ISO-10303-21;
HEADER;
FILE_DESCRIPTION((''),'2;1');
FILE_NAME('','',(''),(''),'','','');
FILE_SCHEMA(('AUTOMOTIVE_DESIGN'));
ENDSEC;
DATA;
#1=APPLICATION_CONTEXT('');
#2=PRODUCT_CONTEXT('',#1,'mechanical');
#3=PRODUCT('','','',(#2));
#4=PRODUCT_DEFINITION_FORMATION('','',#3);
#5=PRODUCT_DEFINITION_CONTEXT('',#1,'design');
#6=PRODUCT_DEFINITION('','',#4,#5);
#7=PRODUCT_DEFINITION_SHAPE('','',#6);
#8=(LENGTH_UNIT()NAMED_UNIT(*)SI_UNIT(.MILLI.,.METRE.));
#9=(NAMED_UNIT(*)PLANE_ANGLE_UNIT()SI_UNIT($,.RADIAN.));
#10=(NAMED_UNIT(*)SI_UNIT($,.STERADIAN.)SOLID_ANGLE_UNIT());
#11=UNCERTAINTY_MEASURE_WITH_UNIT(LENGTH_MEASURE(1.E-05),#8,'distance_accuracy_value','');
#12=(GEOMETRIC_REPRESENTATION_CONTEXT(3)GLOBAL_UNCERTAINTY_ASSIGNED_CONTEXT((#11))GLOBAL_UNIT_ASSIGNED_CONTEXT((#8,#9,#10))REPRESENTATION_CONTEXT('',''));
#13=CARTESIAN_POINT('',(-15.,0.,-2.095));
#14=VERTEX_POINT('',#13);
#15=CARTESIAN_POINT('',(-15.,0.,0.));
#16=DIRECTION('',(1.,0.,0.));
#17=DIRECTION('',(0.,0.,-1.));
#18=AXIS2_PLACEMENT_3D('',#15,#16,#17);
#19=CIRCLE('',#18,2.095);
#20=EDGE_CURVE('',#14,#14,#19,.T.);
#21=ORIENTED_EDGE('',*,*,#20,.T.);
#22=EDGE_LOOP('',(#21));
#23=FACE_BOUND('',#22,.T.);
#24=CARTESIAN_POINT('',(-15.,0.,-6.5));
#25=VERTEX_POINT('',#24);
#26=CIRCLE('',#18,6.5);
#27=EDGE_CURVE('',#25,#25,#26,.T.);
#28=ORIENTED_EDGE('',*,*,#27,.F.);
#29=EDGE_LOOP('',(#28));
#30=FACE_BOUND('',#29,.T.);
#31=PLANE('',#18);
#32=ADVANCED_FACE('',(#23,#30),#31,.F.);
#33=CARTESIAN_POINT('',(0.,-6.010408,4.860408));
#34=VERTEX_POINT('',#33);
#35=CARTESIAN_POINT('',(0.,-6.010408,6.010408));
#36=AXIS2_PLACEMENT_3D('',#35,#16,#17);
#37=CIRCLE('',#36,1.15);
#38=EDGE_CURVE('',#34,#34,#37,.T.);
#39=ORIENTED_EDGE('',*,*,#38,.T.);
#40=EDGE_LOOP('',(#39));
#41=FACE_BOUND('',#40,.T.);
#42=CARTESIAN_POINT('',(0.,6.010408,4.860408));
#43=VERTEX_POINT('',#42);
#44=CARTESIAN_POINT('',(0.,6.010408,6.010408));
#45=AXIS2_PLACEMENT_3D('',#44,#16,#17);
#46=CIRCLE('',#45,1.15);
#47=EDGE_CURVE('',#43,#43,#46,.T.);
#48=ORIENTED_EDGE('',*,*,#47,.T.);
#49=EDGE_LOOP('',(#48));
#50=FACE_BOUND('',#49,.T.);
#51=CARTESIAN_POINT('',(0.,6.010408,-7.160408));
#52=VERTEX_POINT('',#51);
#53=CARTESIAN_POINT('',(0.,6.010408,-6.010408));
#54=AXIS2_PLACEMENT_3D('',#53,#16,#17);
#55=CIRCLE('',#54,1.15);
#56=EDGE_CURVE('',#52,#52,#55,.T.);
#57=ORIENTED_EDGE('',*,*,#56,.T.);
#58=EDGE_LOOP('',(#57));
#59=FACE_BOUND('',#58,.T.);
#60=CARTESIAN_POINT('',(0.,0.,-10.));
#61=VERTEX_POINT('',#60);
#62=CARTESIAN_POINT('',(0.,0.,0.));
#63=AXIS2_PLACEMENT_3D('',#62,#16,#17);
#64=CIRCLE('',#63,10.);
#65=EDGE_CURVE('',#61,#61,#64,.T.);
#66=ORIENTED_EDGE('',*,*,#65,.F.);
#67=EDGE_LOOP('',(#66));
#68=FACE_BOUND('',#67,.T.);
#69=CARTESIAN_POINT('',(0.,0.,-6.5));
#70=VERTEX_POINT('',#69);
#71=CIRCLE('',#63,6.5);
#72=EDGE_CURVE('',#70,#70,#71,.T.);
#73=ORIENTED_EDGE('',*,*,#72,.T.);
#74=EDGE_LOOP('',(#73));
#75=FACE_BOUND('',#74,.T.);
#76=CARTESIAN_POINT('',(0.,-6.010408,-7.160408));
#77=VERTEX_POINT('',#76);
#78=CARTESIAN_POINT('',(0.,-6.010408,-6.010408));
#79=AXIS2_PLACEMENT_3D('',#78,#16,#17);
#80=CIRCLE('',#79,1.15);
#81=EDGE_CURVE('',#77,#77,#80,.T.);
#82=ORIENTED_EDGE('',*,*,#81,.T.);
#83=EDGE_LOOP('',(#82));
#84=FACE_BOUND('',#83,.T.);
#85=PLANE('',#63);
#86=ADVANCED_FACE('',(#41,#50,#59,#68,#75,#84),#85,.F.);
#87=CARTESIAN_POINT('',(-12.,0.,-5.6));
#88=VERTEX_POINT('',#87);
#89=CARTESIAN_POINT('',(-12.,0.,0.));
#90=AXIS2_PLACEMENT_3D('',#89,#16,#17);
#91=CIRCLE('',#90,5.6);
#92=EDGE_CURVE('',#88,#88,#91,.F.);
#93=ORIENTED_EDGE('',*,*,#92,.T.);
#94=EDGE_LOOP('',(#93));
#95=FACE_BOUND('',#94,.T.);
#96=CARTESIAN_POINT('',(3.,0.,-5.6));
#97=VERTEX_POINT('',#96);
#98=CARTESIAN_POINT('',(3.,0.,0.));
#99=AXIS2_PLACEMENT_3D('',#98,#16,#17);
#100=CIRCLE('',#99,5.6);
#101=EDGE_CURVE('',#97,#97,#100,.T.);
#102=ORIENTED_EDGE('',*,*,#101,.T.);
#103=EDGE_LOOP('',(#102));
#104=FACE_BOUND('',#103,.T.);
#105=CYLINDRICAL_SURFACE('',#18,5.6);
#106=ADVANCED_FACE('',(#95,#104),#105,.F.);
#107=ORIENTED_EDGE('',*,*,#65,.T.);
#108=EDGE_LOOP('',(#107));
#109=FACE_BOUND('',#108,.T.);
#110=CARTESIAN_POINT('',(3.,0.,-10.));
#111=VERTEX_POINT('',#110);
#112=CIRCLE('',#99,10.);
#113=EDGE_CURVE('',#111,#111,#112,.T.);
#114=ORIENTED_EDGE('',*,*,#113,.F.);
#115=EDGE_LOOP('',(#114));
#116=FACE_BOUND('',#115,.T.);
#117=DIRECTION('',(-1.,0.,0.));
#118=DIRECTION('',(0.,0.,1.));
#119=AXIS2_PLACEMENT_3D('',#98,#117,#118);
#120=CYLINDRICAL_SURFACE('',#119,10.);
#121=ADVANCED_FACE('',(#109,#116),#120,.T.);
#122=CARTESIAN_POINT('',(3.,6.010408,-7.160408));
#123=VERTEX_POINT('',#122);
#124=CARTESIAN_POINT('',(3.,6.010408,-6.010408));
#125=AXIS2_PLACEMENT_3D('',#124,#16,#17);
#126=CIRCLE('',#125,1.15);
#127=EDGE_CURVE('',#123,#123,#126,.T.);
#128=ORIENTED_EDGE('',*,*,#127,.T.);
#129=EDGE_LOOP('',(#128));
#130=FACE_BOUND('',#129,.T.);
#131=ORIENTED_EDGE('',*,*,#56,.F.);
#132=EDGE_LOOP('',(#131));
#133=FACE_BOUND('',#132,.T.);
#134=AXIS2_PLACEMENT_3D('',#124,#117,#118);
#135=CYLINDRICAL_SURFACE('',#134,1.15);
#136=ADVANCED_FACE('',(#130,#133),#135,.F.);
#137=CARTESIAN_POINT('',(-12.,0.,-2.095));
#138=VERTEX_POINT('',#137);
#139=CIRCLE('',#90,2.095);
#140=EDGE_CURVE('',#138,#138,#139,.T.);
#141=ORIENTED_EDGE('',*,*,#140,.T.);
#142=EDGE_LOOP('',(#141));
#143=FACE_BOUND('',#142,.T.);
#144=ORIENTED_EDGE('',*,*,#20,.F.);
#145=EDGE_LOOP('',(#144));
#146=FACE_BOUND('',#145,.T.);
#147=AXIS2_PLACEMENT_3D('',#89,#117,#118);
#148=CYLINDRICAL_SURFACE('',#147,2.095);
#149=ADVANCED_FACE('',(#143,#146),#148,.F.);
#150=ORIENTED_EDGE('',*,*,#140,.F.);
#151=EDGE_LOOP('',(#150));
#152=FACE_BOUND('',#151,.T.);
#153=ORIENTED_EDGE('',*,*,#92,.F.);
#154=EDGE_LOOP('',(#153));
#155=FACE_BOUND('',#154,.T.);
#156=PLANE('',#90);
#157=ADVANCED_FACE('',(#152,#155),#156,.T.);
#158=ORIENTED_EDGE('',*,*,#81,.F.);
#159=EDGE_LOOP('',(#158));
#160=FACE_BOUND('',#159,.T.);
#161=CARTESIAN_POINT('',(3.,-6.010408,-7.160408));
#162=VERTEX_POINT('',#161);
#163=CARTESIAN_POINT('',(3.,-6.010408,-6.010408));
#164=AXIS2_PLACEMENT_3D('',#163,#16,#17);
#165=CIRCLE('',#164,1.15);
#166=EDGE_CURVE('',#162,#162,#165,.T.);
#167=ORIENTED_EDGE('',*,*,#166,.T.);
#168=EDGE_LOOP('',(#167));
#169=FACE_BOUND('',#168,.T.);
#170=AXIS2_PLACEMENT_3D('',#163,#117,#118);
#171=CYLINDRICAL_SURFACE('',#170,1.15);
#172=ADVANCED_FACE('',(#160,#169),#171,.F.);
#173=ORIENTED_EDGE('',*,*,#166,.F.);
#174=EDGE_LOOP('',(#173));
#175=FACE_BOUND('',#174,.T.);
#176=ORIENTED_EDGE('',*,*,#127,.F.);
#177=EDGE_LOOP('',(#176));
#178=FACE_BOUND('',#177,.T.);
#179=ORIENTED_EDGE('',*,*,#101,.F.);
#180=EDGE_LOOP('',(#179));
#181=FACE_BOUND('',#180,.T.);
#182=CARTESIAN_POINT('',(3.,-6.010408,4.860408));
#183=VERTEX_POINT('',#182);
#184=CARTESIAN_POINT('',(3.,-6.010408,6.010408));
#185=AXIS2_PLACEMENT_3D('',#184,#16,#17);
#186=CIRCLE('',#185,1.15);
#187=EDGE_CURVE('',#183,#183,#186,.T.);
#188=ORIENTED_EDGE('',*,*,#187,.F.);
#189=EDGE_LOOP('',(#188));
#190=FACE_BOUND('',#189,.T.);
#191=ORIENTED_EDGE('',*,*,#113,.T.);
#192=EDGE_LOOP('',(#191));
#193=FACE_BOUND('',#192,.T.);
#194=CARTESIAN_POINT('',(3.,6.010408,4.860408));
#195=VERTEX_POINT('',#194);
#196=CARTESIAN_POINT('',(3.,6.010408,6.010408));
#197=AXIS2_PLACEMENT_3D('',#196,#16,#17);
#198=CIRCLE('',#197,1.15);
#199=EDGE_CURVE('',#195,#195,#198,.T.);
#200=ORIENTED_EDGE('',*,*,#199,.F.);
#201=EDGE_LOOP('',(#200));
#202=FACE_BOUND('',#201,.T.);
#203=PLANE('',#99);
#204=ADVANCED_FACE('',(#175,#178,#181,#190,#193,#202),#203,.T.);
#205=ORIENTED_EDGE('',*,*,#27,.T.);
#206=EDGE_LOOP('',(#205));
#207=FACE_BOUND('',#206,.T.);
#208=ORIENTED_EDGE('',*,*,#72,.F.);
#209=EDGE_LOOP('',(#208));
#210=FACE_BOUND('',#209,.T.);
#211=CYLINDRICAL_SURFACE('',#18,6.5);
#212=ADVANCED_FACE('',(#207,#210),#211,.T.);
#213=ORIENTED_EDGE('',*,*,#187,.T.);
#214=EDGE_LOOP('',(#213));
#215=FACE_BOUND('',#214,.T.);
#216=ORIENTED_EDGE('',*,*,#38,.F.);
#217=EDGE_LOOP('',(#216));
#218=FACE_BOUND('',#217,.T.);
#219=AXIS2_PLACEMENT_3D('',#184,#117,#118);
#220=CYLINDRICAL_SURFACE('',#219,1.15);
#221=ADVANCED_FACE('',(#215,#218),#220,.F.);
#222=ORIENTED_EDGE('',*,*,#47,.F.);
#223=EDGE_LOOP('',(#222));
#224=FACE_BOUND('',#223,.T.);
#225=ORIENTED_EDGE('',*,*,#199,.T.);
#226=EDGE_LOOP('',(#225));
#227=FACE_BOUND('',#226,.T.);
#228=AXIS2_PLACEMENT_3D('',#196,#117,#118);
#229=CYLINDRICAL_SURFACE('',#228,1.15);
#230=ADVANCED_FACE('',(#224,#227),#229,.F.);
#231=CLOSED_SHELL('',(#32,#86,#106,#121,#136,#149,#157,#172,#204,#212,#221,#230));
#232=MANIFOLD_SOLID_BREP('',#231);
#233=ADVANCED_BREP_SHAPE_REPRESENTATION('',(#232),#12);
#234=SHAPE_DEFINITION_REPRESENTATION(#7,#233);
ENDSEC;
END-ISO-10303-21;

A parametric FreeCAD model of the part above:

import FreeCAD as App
import Part
import Sketcher
from FreeCAD import Vector

doc = App.newDocument("Part")
params = doc.addObject("Spreadsheet::Sheet", "Params")
for row, (alias, value) in enumerate([
    ("sketch1_diameter", "20 mm"),
    ("pad1_length", "3 mm"),
    ("sketch2_diameter", "13 mm"),
    ("sketch2_diameter2", "11.2 mm"),
    ("pad2_length", "15 mm"),
    ("sketch3_diameter", "13 mm"),
    ("sketch3_diameter2", "4.19 mm"),
    ("pad3_length", "3 mm"),
    ("sketch4_diameter", "11.2 mm"),
    ("pocket1_length", "3 mm"),
    ("sketch5_diameter", "2.3 mm"),
], start=1):
    params.set(f"A{row}", alias)
    params.set(f"B{row}", "=" + value)
    params.setAlias(f"B{row}", alias)

body = doc.addObject("PartDesign::Body", "Body")

# Sketch on YZ plane
sketch1 = body.newObject("Sketcher::SketchObject", "Sketch")
sketch1.AttachmentSupport = (doc.getObject("YZ_Plane"), [""])
sketch1.MapMode = "FlatFace"
sketch1.addGeometry(Part.Circle(Vector(0, 0, 0), Vector(0, 0, 1), 10), False)
sketch1.addConstraint([
    Sketcher.Constraint("Coincident", 0, 3, -1, 1),
    Sketcher.Constraint("Diameter", 0, 20.0),
])
sketch1.setExpression("Constraints[1]", "Params.sketch1_diameter")
pad1 = body.newObject("PartDesign::Pad", "Pad")
pad1.Profile = sketch1
pad1.setExpression("Length", "Params.pad1_length")

# Sketch on YZ plane
sketch2 = body.newObject("Sketcher::SketchObject", "Sketch001")
sketch2.AttachmentSupport = (doc.getObject("YZ_Plane"), [""])
sketch2.MapMode = "FlatFace"
sketch2.addGeometry([
    Part.Circle(Vector(0, 0, 0), Vector(0, 0, 1), 6),
    Part.Circle(Vector(0, 0, 0), Vector(0, 0, 1), 6),
], False)
sketch2.addConstraint([
    Sketcher.Constraint("Coincident", 0, 3, -1, 1),
    Sketcher.Constraint("Coincident", 1, 3, -1, 1),
    Sketcher.Constraint("Diameter", 0, 13.0),
    Sketcher.Constraint("Diameter", 1, 11.2),
])
sketch2.setExpression("Constraints[2]", "Params.sketch2_diameter")
sketch2.setExpression("Constraints[3]", "Params.sketch2_diameter2")
pad2 = body.newObject("PartDesign::Pad", "Pad001")
pad2.Profile = sketch2
pad2.setExpression("Length", "Params.pad2_length")
pad2.Reversed = True

# Sketch on YZ plane
sketch3 = body.newObject("Sketcher::SketchObject", "Sketch002")
sketch3.AttachmentSupport = (doc.getObject("YZ_Plane"), [""])
sketch3.MapMode = "FlatFace"
sketch3.AttachmentOffset = App.Placement(Vector(0, 0, -15), App.Rotation())
sketch3.addGeometry([
    Part.Circle(Vector(0, 0, 0), Vector(0, 0, 1), 6.5),
    Part.Circle(Vector(0, 0, 0), Vector(0, 0, 1), 2.1),
], False)
sketch3.addConstraint([
    Sketcher.Constraint("Coincident", 0, 3, -1, 1),
    Sketcher.Constraint("Coincident", 1, 3, -1, 1),
    Sketcher.Constraint("Diameter", 0, 13.0),
    Sketcher.Constraint("Diameter", 1, 4.19),
])
sketch3.setExpression("Constraints[2]", "Params.sketch3_diameter")
sketch3.setExpression("Constraints[3]", "Params.sketch3_diameter2")
pad3 = body.newObject("PartDesign::Pad", "Pad002")
pad3.Profile = sketch3
pad3.setExpression("Length", "Params.pad3_length")

# Sketch on YZ plane
sketch4 = body.newObject("Sketcher::SketchObject", "Sketch003")
sketch4.AttachmentSupport = (doc.getObject("YZ_Plane"), [""])
sketch4.MapMode = "FlatFace"
sketch4.addGeometry(Part.Circle(Vector(0, 0, 0), Vector(0, 0, 1), 6), False)
sketch4.addConstraint([
    Sketcher.Constraint("Coincident", 0, 3, -1, 1),
    Sketcher.Constraint("Diameter", 0, 11.2),
])
sketch4.setExpression("Constraints[1]", "Params.sketch4_diameter")
pocket1 = body.newObject("PartDesign::Pocket", "Pocket")
pocket1.Profile = sketch4
pocket1.setExpression("Length", "Params.pocket1_length")
pocket1.Reversed = True

# Sketch on YZ plane
sketch5 = body.newObject("Sketcher::SketchObject", "Sketch004")
sketch5.AttachmentSupport = (doc.getObject("YZ_Plane"), [""])
sketch5.MapMode = "FlatFace"
sketch5.addGeometry([
    Part.Circle(Vector(6, -6, 0), Vector(0, 0, 1), 1.1),
    Part.Circle(Vector(-6, -6, 0), Vector(0, 0, 1), 1.1),
    Part.Circle(Vector(-6, 6, 0), Vector(0, 0, 1), 1.1),
    Part.Circle(Vector(6, 6, 0), Vector(0, 0, 1), 1.1),
], False)
sketch5.addConstraint([
    Sketcher.Constraint("Equal", 0, 1),
    Sketcher.Constraint("Equal", 1, 2),
    Sketcher.Constraint("Equal", 2, 3),
    Sketcher.Constraint("Symmetric", 0, 3, 2, 3, -1, 1),
    Sketcher.Constraint("Symmetric", 1, 3, 3, 3, -1, 1),
    Sketcher.Constraint("Symmetric", 0, 3, 1, 3, -2),
    Sketcher.Constraint("Diameter", 0, 2.3),
    Sketcher.Constraint("DistanceX", -1, 1, 0, 3, 6.010408),
    Sketcher.Constraint("DistanceY", 0, 3, -1, 1, 6.010408),
])
sketch5.setExpression("Constraints[6]", "Params.sketch5_diameter")
pocket2 = body.newObject("PartDesign::Pocket", "Pocket001")
pocket2.Profile = sketch5
pocket2.Type = "ThroughAll"
pocket2.Reversed = True

doc.recompute()
